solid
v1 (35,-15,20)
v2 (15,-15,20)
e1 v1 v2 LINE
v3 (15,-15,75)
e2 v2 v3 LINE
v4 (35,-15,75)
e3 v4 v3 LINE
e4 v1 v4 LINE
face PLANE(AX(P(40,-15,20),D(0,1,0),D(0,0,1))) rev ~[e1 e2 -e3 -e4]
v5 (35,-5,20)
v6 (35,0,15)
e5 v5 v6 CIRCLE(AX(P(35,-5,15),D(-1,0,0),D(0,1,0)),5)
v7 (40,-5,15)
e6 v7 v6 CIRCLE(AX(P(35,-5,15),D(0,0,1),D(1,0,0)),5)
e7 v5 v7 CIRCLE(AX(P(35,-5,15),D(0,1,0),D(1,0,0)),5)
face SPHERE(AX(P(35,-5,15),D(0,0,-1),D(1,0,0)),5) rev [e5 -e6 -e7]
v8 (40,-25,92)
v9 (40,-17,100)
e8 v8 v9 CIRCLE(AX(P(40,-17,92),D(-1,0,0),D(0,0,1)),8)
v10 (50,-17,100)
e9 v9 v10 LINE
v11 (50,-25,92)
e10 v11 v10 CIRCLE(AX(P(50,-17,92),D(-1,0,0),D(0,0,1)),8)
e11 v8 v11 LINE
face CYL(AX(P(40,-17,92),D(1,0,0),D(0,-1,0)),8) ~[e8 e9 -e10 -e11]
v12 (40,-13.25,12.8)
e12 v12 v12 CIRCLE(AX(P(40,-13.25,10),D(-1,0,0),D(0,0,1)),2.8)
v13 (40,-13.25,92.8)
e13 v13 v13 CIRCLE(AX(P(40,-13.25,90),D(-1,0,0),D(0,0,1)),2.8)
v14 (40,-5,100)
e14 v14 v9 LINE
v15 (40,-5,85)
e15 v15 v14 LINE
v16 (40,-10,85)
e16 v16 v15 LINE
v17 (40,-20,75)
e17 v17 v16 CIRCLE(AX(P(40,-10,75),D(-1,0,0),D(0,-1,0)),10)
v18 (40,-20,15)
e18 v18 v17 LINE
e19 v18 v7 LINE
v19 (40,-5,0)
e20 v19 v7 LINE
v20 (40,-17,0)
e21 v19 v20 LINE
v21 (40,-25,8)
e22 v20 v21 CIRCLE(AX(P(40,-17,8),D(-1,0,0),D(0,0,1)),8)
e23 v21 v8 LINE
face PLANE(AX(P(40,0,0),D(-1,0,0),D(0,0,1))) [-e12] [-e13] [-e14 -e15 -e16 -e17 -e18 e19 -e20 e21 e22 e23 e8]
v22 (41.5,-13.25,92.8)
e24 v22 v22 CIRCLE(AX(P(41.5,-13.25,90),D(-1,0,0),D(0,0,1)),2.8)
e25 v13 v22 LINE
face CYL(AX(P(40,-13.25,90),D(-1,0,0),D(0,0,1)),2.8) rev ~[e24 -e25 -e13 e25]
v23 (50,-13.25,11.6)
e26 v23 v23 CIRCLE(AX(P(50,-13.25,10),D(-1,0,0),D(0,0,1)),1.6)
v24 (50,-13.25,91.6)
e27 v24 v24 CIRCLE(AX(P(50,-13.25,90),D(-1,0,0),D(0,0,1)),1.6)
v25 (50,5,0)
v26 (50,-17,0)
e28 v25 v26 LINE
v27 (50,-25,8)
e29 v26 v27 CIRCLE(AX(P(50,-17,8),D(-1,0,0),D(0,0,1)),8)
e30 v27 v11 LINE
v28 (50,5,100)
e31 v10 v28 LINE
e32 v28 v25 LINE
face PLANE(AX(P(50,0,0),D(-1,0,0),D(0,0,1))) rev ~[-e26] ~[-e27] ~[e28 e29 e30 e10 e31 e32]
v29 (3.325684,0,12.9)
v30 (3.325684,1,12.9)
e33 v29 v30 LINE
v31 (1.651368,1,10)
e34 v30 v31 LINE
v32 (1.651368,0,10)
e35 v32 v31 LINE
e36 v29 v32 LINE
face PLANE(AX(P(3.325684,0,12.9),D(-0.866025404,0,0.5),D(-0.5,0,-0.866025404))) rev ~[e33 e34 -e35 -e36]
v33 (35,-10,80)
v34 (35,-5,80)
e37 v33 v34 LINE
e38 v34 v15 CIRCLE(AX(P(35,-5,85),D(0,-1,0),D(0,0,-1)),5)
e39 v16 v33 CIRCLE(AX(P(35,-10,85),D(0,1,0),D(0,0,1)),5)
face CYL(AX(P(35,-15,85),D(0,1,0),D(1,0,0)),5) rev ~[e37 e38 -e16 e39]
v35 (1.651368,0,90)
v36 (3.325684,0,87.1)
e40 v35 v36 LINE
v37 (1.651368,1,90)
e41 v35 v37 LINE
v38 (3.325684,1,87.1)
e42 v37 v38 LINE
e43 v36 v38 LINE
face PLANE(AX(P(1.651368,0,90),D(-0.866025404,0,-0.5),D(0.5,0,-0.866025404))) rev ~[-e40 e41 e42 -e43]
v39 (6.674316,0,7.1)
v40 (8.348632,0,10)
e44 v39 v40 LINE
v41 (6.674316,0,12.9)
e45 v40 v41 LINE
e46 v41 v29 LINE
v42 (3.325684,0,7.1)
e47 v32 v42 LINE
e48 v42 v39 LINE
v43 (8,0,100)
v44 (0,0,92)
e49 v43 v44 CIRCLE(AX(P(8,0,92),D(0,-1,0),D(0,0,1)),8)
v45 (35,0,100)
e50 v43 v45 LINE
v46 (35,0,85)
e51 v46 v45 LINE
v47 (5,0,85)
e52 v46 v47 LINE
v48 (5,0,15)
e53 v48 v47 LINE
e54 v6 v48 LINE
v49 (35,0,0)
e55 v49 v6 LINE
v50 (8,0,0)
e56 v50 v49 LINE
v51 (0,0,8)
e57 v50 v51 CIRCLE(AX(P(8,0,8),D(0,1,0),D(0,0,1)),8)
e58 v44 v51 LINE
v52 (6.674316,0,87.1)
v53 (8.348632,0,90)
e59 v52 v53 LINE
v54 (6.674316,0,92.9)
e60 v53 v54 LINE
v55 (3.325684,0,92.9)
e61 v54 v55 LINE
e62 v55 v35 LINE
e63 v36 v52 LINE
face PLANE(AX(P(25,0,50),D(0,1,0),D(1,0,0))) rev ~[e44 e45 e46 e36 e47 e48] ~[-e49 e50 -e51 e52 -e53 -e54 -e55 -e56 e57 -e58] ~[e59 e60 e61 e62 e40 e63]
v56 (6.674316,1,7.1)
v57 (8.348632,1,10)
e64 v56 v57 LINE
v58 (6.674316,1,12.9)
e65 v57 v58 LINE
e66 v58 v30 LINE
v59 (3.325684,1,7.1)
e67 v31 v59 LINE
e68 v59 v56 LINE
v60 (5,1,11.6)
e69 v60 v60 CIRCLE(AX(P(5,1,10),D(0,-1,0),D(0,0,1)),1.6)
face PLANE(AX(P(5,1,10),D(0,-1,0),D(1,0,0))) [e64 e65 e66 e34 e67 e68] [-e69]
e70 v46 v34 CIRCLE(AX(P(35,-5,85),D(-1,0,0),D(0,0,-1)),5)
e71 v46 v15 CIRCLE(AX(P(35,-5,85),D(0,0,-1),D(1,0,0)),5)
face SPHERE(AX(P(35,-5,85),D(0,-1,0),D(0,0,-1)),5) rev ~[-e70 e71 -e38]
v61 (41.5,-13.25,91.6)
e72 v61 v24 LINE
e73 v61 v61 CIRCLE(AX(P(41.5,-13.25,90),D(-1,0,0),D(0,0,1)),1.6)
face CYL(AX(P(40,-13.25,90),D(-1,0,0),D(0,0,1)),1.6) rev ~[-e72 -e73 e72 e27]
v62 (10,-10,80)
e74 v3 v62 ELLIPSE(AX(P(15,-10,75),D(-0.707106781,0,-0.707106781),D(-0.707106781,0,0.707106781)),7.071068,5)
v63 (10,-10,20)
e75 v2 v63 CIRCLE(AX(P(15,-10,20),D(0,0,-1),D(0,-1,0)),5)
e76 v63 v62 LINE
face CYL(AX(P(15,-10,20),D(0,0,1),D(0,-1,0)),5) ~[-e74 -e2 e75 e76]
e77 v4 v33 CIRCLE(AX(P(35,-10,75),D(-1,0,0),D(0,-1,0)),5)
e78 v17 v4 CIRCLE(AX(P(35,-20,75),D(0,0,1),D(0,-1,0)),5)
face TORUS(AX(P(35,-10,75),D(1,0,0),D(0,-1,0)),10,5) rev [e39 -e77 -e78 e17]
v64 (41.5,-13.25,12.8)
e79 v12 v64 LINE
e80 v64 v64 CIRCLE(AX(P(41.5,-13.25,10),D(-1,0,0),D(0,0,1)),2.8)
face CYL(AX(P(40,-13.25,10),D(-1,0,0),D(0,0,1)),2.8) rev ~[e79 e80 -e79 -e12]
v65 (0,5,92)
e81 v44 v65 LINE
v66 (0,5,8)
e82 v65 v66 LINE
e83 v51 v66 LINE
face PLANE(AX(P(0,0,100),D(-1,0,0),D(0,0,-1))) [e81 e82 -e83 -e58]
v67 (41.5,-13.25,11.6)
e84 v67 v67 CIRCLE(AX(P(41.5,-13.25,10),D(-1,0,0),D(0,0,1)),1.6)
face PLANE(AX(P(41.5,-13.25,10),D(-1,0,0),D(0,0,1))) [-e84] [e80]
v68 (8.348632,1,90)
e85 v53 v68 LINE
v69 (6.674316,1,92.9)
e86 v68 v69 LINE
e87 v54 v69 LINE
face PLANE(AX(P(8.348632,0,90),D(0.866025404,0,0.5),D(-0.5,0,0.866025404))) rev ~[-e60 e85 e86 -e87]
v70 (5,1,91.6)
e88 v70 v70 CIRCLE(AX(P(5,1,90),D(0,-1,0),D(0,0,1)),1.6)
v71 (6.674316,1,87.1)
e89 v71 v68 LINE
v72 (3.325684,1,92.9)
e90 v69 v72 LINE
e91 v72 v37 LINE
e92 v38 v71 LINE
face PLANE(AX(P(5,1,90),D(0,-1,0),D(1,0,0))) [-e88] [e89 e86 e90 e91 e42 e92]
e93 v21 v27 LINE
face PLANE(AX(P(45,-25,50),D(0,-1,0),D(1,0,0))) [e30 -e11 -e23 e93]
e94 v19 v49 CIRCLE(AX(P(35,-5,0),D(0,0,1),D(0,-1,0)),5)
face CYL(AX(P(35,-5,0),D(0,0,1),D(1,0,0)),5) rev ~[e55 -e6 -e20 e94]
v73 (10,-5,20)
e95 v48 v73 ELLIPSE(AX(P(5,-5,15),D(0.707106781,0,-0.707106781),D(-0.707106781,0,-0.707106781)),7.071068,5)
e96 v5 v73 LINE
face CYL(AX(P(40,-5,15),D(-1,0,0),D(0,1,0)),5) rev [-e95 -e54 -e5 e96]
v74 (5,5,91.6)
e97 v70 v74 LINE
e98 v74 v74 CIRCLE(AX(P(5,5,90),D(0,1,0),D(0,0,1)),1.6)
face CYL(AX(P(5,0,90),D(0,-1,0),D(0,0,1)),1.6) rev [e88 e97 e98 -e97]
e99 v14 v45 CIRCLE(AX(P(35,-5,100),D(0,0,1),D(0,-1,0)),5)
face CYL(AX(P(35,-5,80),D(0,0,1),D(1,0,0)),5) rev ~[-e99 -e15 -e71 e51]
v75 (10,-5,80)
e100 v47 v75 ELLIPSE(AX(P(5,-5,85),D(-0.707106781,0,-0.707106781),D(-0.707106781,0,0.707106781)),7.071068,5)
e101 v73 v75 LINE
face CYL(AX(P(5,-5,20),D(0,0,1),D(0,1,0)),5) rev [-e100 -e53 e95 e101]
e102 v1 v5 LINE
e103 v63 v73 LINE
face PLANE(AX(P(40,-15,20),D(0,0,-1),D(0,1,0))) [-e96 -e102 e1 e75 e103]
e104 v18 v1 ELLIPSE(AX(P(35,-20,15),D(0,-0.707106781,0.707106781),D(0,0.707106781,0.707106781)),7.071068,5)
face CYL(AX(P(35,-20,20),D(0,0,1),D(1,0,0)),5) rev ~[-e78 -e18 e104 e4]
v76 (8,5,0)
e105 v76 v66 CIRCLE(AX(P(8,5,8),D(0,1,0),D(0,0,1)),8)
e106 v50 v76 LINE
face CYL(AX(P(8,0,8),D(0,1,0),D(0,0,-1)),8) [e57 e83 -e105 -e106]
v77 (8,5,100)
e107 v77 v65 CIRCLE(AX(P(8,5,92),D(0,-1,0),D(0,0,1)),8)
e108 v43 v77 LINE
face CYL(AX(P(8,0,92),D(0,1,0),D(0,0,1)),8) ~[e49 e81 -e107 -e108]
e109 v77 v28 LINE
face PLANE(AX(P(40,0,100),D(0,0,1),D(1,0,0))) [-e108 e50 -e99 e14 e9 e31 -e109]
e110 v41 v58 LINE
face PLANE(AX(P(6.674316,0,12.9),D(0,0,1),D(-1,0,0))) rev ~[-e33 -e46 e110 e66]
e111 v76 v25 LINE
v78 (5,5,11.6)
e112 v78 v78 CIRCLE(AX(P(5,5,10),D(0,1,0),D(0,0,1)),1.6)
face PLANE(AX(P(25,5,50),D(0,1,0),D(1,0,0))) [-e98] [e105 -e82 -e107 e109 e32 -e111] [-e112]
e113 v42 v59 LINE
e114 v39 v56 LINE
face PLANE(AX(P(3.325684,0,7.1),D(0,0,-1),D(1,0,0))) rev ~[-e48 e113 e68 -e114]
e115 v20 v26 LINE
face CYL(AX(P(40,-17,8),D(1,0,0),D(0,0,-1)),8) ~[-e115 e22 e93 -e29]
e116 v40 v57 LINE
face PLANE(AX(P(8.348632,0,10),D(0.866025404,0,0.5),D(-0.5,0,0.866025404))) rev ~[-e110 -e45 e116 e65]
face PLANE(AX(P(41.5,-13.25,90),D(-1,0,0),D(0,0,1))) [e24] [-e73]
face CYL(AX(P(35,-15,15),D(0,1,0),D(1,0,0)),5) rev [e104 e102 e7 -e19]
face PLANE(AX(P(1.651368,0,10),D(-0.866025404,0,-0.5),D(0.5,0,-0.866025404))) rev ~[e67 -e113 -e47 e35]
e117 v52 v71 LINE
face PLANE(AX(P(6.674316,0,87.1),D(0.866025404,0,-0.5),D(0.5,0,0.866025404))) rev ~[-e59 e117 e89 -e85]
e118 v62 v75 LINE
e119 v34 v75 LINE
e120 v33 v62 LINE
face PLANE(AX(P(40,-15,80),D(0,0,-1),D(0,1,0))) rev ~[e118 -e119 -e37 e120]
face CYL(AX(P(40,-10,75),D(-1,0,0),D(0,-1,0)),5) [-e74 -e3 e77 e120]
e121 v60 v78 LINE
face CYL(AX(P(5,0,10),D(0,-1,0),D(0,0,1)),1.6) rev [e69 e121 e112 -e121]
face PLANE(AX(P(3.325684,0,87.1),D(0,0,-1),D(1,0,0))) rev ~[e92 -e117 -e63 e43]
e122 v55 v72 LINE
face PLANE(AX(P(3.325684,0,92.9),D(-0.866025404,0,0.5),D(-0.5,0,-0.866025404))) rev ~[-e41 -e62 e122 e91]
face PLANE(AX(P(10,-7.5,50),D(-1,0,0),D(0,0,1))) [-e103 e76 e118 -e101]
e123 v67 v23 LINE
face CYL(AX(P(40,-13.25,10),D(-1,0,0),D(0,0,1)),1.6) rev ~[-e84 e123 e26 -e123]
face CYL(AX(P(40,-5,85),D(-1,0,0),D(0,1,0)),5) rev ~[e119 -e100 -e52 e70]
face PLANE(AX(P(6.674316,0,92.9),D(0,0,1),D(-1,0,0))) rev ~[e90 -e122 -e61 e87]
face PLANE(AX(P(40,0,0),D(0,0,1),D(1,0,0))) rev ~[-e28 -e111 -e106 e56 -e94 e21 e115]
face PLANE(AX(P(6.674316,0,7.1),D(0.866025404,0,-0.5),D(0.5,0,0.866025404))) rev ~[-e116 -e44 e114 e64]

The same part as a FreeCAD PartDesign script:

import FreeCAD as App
import Part
import Sketcher
Q = App.Units.Quantity


def edges_at(feature, points):
    """Names of the edges that pass closest to the given points."""
    edges = feature.Shape.Edges
    near = lambda p: min(range(len(edges)), key=lambda i: edges[i].distToShape(Part.Vertex(*p))[0])
    return sorted({f"Edge{near(p) + 1}" for p in points})

doc = App.newDocument("Part")
body = doc.addObject("PartDesign::Body", "Body")

# Sketch on XZ plane
sketch1 = body.newObject("Sketcher::SketchObject", "Sketch")
sketch1.AttachmentSupport = (doc.getObject("XZ_Plane"), [""])
sketch1.MapMode = "FlatFace"
sketch1.addGeometry([
    Part.LineSegment(App.Vector(0, 0, 0), App.Vector(0, 100, 0)),  # 0
    Part.LineSegment(App.Vector(0, 100, 0), App.Vector(50, 100, 0)),  # 1
    Part.LineSegment(App.Vector(50, 100, 0), App.Vector(50, 0, 0)),  # 2
    Part.LineSegment(App.Vector(50, 0, 0), App.Vector(0, 0, 0)),  # 3
    Part.Circle(App.Vector(5, 90, 0), App.Vector(0, 0, 1), 1.6),  # 4
    Part.Circle(App.Vector(5, 10, 0), App.Vector(0, 0, 1), 1.6),  # 5
], False)
sketch1.addConstraint([
    Sketcher.Constraint("Coincident", 0, 2, 1, 1),
    Sketcher.Constraint("Coincident", 1, 2, 2, 1),
    Sketcher.Constraint("Coincident", 2, 2, 3, 1),
    Sketcher.Constraint("Coincident", 3, 2, 0, 1),
    Sketcher.Constraint("Vertical", 0),
    Sketcher.Constraint("Horizontal", 1),
    Sketcher.Constraint("Vertical", 2),
    Sketcher.Constraint("Horizontal", 3),
    Sketcher.Constraint("Coincident", 3, 2, -1, 1),
    Sketcher.Constraint("Equal", 4, 5),
    Sketcher.Constraint("Vertical", 4, 3, 5, 3),
    Sketcher.Constraint("Diameter", 4, Q("3.2 mm")),
    Sketcher.Constraint("DistanceX", 1, 1, 1, 2, Q("50 mm")),
    Sketcher.Constraint("DistanceY", 0, 1, 0, 2, Q("100 mm")),
    Sketcher.Constraint("DistanceX", -1, 1, 4, 3, Q("5 mm")),
    Sketcher.Constraint("DistanceY", -1, 1, 4, 3, Q("90 mm")),
    Sketcher.Constraint("DistanceY", -1, 1, 5, 3, Q("10 mm")),
])
pad1 = body.newObject("PartDesign::Pad", "Pad")
pad1.Profile = sketch1
pad1.Length = 5
pad1.Reversed = True

# Sketch on XZ plane
sketch2 = body.newObject("Sketcher::SketchObject", "Sketch001")
sketch2.AttachmentSupport = (doc.getObject("XZ_Plane"), [""])
sketch2.MapMode = "FlatFace"
sketch2.addGeometry([
    Part.LineSegment(App.Vector(40, 100, 0), App.Vector(40, 0, 0)),
    Part.LineSegment(App.Vector(40, 0, 0), App.Vector(50, 0, 0)),
    Part.LineSegment(App.Vector(50, 0, 0), App.Vector(50, 100, 0)),
    Part.LineSegment(App.Vector(50, 100, 0), App.Vector(40, 100, 0)),
], False)
sketch2.addConstraint([
    Sketcher.Constraint("Coincident", 0, 2, 1, 1),
    Sketcher.Constraint("Coincident", 1, 2, 2, 1),
    Sketcher.Constraint("Coincident", 2, 2, 3, 1),
    Sketcher.Constraint("Coincident", 3, 2, 0, 1),
    Sketcher.Constraint("Vertical", 0),
    Sketcher.Constraint("Horizontal", 1),
    Sketcher.Constraint("Vertical", 2),
    Sketcher.Constraint("Horizontal", 3),
    Sketcher.Constraint("PointOnObject", 0, 2, -1),
    Sketcher.Constraint("DistanceX", 1, 1, 1, 2, Q("10 mm")),
    Sketcher.Constraint("DistanceY", 0, 2, 0, 1, Q("100 mm")),
    Sketcher.Constraint("DistanceX", -1, 1, 0, 2, Q("40 mm")),
])
pad2 = body.newObject("PartDesign::Pad", "Pad001")
pad2.Profile = sketch2
pad2.Length = 25

# Sketch on YZ plane
sketch3 = body.newObject("Sketcher::SketchObject", "Sketch002")
sketch3.AttachmentSupport = (doc.getObject("YZ_Plane"), [""])
sketch3.MapMode = "FlatFace"
sketch3.AttachmentOffset = App.Placement(App.Vector(0, 0, 40), App.Rotation())
sketch3.addGeometry([
    Part.Circle(App.Vector(-13.2, 10, 0), App.Vector(0, 0, 1), 1.6),
    Part.Circle(App.Vector(-13.2, 90, 0), App.Vector(0, 0, 1), 1.6),
], False)
sketch3.addConstraint([
    Sketcher.Constraint("Equal", 0, 1),
    Sketcher.Constraint("Vertical", 0, 3, 1, 3),
    Sketcher.Constraint("Diameter", 0, Q("3.2 mm")),
    Sketcher.Constraint("DistanceY", -1, 1, 0, 3, Q("10 mm")),
    Sketcher.Constraint("DistanceY", -1, 1, 1, 3, Q("90 mm")),
    Sketcher.Constraint("DistanceX", 0, 3, -1, 1, Q("13.25 mm")),
])
pocket1 = body.newObject("PartDesign::Pocket", "Pocket")
pocket1.Profile = sketch3
pocket1.Length = 10
pocket1.Reversed = True

# Sketch on XZ plane
sketch4 = body.newObject("Sketcher::SketchObject", "Sketch003")
sketch4.AttachmentSupport = (doc.getObject("XZ_Plane"), [""])
sketch4.MapMode = "FlatFace"
sketch4.addGeometry([
    Part.LineSegment(App.Vector(3.3, 7.1, 0), App.Vector(6.7, 7.1, 0)),  # 0
    Part.LineSegment(App.Vector(6.7, 7.1, 0), App.Vector(8.3, 10, 0)),  # 1
    Part.LineSegment(App.Vector(8.3, 10, 0), App.Vector(6.7, 12.9, 0)),  # 2
    Part.LineSegment(App.Vector(6.7, 12.9, 0), App.Vector(3.3, 12.9, 0)),  # 3
    Part.LineSegment(App.Vector(3.3, 12.9, 0), App.Vector(1.7, 10, 0)),  # 4
    Part.LineSegment(App.Vector(1.7, 10, 0), App.Vector(3.3, 7.1, 0)),  # 5
    Part.LineSegment(App.Vector(3.3, 87.1, 0), App.Vector(6.7, 87.1, 0)),  # 6
    Part.LineSegment(App.Vector(6.7, 87.1, 0), App.Vector(8.3, 90, 0)),  # 7
    Part.LineSegment(App.Vector(8.3, 90, 0), App.Vector(6.7, 92.9, 0)),  # 8
    Part.LineSegment(App.Vector(6.7, 92.9, 0), App.Vector(3.3, 92.9, 0)),  # 9
    Part.LineSegment(App.Vector(3.3, 92.9, 0), App.Vector(1.7, 90, 0)),  # 10
    Part.LineSegment(App.Vector(1.7, 90, 0), App.Vector(3.3, 87.1, 0)),  # 11
], False)
sketch4.addConstraint([
    Sketcher.Constraint("Coincident", 0, 2, 1, 1),
    Sketcher.Constraint("Coincident", 1, 2, 2, 1),
    Sketcher.Constraint("Coincident", 2, 2, 3, 1),
    Sketcher.Constraint("Coincident", 3, 2, 4, 1),
    Sketcher.Constraint("Coincident", 4, 2, 5, 1),
    Sketcher.Constraint("Coincident", 5, 2, 0, 1),
    Sketcher.Constraint("Coincident", 6, 2, 7, 1),
    Sketcher.Constraint("Coincident", 7, 2, 8, 1),
    Sketcher.Constraint("Coincident", 8, 2, 9, 1),
    Sketcher.Constraint("Coincident", 9, 2, 10, 1),
    Sketcher.Constraint("Coincident", 10, 2, 11, 1),
    Sketcher.Constraint("Coincident", 11, 2, 6, 1),
    Sketcher.Constraint("Horizontal", 0),
    Sketcher.Constraint("Horizontal", 3),
    Sketcher.Constraint("Horizontal", 6),
    Sketcher.Constraint("Horizontal", 9),
    Sketcher.Constraint("Parallel", 1, 4),
    Sketcher.Constraint("Parallel", 2, 5),
    Sketcher.Constraint("Parallel", 4, 7),
    Sketcher.Constraint("Parallel", 5, 8),
    Sketcher.Constraint("Parallel", 7, 10),
    Sketcher.Constraint("Parallel", 8, 11),
    Sketcher.Constraint("Horizontal", 1, 2, 4, 2),
    Sketcher.Constraint("Horizontal", 7, 2, 10, 2),
    Sketcher.Constraint("Vertical", 0, 2, 2, 2),
    Sketcher.Constraint("Vertical", 3, 2, 5, 2),
    Sketcher.Constraint("Vertical", 2, 2, 6, 2),
    Sketcher.Constraint("Vertical", 1, 2, 7, 2),
    Sketcher.Constraint("Vertical", 6, 2, 8, 2),
    Sketcher.Constraint("Vertical", 5, 2, 9, 2),
    Sketcher.Constraint("Angle", 1, Q("60 deg")),
    Sketcher.Constraint("DistanceY", -1, 1, 1, 2, Q("10 mm")),
    Sketcher.Constraint("DistanceY", -1, 1, 7, 2, Q("90 mm")),
    Sketcher.Constraint("DistanceY", -1, 1, 0, 2, Q("7.1 mm")),
    Sketcher.Constraint("DistanceX", 0, 1, 0, 2, Q("3.348632 mm")),
    Sketcher.Constraint("DistanceX", -1, 1, 1, 2, Q("8.348632 mm")),
])
pocket2 = body.newObject("PartDesign::Pocket", "Pocket001")
pocket2.Profile = sketch4
pocket2.Length = 1
doc.recompute()

fillet = body.newObject("PartDesign::Fillet", "Fillet")
fillet.Base = (pocket2, edges_at(pocket2, [
    (45, -25, 100),
    (45, -25, 0),
    (0, 2.5, 0),
    (0, 2.5, 100),
]))
fillet.Radius = 8

# Sketch on YZ plane
sketch5 = body.newObject("Sketcher::SketchObject", "Sketch004")
sketch5.AttachmentSupport = (doc.getObject("YZ_Plane"), [""])
sketch5.MapMode = "FlatFace"
sketch5.AttachmentOffset = App.Placement(App.Vector(0, 0, 40), App.Rotation())
sketch5.addGeometry([
    Part.LineSegment(App.Vector(0, 20, 0), App.Vector(-15, 20, 0)),
    Part.LineSegment(App.Vector(-15, 20, 0), App.Vector(-15, 80, 0)),
    Part.LineSegment(App.Vector(-15, 80, 0), App.Vector(0, 80, 0)),
    Part.LineSegment(App.Vector(0, 80, 0), App.Vector(0, 20, 0)),
], False)
sketch5.addConstraint([
    Sketcher.Constraint("Coincident", 0, 2, 1, 1),
    Sketcher.Constraint("Coincident", 1, 2, 2, 1),
    Sketcher.Constraint("Coincident", 2, 2, 3, 1),
    Sketcher.Constraint("Coincident", 3, 2, 0, 1),
    Sketcher.Constraint("Horizontal", 0),
    Sketcher.Constraint("Vertical", 1),
    Sketcher.Constraint("Horizontal", 2),
    Sketcher.Constraint("Vertical", 3),
    Sketcher.Constraint("PointOnObject", 2, 2, -2),
    Sketcher.Constraint("DistanceX", 0, 2, 0, 1, Q("15 mm")),
    Sketcher.Constraint("DistanceY", 1, 1, 1, 2, Q("60 mm")),
    Sketcher.Constraint("DistanceY", -1, 1, 0, 2, Q("20 mm")),
])
pad3 = body.newObject("PartDesign::Pad", "Pad002")
pad3.Profile = sketch5
pad3.Length = 30
pad3.Reversed = True
doc.recompute()

fillet2 = body.newObject("PartDesign::Fillet", "Fillet001")
fillet2.Base = (pad3, edges_at(pad3, [
    (40, 0, 10),
    (40, -7.5, 20),
    (25, 0, 20),
    (40, -15, 50),
    (40, -7.5, 80),
    (25, -15, 80),
    (25, 0, 80),
    (10, -15, 50),
    (10, 0, 50),
    (40, 0, 90),
]))
fillet2.Radius = 5

# Sketch on YZ plane
sketch6 = body.newObject("Sketcher::SketchObject", "Sketch005")
sketch6.AttachmentSupport = (doc.getObject("YZ_Plane"), [""])
sketch6.MapMode = "FlatFace"
sketch6.AttachmentOffset = App.Placement(App.Vector(0, 0, 40), App.Rotation())
sketch6.addGeometry([
    Part.Circle(App.Vector(-13.2, 10, 0), App.Vector(0, 0, 1), 2.8),
    Part.Circle(App.Vector(-13.2, 90, 0), App.Vector(0, 0, 1), 2.8),
], False)
sketch6.addConstraint([
    Sketcher.Constraint("Equal", 0, 1),
    Sketcher.Constraint("Vertical", 0, 3, 1, 3),
    Sketcher.Constraint("Diameter", 0, Q("5.6 mm")),
    Sketcher.Constraint("DistanceY", -1, 1, 0, 3, Q("10 mm")),
    Sketcher.Constraint("DistanceY", -1, 1, 1, 3, Q("90 mm")),
    Sketcher.Constraint("DistanceX", 0, 3, -1, 1, Q("13.25 mm")),
])
pocket3 = body.newObject("PartDesign::Pocket", "Pocket002")
pocket3.Profile = sketch6
pocket3.Length = 1.5
pocket3.Reversed = True

doc.recompute()
